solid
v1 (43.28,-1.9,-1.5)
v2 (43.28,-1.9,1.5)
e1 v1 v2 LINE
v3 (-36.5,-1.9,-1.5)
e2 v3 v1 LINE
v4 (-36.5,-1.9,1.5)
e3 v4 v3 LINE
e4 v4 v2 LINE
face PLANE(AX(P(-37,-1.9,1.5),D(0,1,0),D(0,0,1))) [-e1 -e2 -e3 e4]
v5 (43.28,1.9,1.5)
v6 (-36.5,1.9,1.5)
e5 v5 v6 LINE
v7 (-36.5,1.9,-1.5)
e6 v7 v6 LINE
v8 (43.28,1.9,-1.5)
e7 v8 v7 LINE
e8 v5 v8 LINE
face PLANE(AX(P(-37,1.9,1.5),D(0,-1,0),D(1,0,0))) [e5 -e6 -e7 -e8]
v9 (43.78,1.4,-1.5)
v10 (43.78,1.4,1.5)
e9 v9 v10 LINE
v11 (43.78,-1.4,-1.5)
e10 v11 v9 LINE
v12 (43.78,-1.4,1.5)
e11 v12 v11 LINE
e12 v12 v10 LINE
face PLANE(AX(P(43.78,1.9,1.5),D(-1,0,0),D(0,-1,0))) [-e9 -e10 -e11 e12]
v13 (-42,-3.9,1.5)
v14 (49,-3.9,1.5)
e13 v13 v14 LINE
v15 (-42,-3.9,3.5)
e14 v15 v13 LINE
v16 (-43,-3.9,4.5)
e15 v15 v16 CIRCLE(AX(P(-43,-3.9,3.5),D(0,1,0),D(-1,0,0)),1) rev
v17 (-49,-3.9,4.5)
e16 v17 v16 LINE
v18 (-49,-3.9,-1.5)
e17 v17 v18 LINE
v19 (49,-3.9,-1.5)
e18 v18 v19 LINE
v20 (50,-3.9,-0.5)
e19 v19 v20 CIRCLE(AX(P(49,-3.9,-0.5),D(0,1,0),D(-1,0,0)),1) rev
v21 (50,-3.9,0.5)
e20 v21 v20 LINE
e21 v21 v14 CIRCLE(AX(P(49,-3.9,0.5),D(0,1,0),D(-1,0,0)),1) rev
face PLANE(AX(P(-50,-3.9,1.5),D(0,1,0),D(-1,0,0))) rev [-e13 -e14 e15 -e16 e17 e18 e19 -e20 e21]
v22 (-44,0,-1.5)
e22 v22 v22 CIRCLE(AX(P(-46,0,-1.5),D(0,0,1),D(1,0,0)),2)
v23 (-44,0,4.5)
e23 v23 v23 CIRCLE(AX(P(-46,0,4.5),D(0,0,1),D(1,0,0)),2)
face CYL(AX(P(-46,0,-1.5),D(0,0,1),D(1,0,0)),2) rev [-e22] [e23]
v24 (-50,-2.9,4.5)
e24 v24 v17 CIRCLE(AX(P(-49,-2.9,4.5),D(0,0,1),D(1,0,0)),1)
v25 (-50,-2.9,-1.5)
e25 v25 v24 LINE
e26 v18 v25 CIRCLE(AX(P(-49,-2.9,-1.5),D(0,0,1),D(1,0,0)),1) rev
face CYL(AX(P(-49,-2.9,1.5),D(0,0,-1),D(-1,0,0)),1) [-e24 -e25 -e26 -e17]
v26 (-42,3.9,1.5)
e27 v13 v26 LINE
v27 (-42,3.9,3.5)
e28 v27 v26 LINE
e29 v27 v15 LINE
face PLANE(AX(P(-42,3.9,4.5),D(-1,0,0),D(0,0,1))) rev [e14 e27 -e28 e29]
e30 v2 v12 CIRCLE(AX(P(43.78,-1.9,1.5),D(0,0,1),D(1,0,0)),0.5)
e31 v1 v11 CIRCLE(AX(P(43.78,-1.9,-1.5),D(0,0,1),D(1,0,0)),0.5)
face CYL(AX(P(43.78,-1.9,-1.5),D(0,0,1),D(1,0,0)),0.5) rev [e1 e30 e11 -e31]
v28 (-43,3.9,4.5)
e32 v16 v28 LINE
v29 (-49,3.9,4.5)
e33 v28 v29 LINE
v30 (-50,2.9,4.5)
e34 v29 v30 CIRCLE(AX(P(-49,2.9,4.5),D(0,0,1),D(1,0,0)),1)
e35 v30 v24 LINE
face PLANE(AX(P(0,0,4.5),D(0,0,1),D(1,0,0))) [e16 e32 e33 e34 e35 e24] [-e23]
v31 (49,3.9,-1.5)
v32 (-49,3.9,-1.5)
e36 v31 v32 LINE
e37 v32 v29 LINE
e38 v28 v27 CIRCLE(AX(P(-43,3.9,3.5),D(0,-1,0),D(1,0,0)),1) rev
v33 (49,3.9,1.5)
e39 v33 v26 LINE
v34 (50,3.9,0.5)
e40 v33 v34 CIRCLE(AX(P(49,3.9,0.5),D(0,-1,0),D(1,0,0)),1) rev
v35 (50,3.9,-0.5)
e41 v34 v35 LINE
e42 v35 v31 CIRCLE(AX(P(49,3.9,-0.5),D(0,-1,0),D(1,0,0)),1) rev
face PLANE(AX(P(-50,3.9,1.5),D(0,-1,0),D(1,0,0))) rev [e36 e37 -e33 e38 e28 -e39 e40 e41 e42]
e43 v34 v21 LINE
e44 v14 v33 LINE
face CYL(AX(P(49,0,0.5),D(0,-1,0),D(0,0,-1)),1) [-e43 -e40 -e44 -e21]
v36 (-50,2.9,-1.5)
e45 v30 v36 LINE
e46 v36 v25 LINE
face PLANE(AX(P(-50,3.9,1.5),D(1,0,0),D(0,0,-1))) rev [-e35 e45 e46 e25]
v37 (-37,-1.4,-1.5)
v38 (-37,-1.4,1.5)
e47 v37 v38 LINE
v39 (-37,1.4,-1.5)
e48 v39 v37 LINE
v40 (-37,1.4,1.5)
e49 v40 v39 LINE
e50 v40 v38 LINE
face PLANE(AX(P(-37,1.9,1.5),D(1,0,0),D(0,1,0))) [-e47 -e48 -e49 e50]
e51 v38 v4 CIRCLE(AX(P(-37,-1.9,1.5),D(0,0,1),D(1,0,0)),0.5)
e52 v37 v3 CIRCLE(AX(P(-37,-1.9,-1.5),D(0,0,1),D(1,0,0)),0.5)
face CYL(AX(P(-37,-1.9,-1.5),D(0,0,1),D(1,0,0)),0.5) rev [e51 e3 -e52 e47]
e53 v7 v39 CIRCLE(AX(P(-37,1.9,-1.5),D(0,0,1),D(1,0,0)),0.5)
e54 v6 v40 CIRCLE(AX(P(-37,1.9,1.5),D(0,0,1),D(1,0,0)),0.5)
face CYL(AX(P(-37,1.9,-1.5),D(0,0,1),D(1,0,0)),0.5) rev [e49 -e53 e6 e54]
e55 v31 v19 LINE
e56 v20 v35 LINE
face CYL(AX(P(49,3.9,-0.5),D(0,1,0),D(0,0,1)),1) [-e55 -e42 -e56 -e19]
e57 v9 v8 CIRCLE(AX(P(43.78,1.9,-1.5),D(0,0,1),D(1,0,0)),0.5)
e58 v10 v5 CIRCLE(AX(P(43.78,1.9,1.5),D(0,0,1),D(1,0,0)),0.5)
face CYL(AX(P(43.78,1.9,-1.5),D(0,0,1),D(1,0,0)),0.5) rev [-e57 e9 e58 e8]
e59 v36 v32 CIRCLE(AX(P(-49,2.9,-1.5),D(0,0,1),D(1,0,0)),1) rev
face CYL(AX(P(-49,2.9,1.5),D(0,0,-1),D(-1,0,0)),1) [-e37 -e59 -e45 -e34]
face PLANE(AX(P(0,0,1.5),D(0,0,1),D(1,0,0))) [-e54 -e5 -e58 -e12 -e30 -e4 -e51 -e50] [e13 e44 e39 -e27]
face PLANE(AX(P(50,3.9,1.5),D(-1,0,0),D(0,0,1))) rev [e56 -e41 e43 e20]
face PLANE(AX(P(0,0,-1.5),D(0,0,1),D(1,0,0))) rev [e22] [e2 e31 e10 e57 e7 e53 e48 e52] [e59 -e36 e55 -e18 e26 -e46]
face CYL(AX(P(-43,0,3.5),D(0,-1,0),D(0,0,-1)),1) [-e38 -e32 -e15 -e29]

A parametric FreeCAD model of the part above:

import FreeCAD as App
import Part
import Sketcher

V = App.Vector


def edges_at(feature, points):
    """Names of the edges that pass closest to the given points."""
    edges = feature.Shape.Edges
    near = lambda p: min(range(len(edges)), key=lambda i: edges[i].distToShape(Part.Vertex(*p))[0])
    return sorted({f"Edge{near(p) + 1}" for p in points})

doc = App.newDocument("Part")
params = doc.addObject("Spreadsheet::Sheet", "Params")
for row, (alias, value) in enumerate([
    ("sketch1_width", "100 mm"),
    ("sketch1_height", "7.8 mm"),
    ("sketch1_height2", "3.8 mm"),
    ("sketch1_width2", "80.78 mm"),
    ("pad1_length", "3 mm"),
    ("sketch2_width", "8 mm"),
    ("sketch2_height", "7.8 mm"),
    ("pad2_length", "3 mm"),
    ("sketch3_diameter", "4 mm"),
    ("fillet_radius", "1 mm"),
    ("fillet2_radius", "1 mm"),
    ("fillet3_radius", "1 mm"),
    ("fillet4_radius", "1 mm"),
    ("fillet5_radius", "1 mm"),
    ("sketch4_diameter", "1 mm"),
], start=1):
    params.set(f"A{row}", alias)
    params.set(f"B{row}", "=" + value)
    params.setAlias(f"B{row}", alias)

body = doc.addObject("PartDesign::Body", "Body")

# Sketch on XY plane
sketch1 = doc.addObject("Sketcher::SketchObject", "Sketch")
body.addObject(sketch1)
sketch1.AttachmentSupport = (doc.XY_Plane, [""])
sketch1.MapMode = "FlatFace"
sketch1.addGeometry([
    Part.LineSegment(V(-50, 3.9, 0), V(-50, -3.9, 0)),  # 0
    Part.LineSegment(V(-50, -3.9, 0), V(50, -3.9, 0)),  # 1
    Part.LineSegment(V(50, -3.9, 0), V(50, 3.9, 0)),  # 2
    Part.LineSegment(V(50, 3.9, 0), V(-50, 3.9, 0)),  # 3
    Part.LineSegment(V(43.8, -1.9, 0), V(-37, -1.9, 0)),  # 4
    Part.LineSegment(V(-37, -1.9, 0), V(-37, 1.9, 0)),  # 5
    Part.LineSegment(V(-37, 1.9, 0), V(43.8, 1.9, 0)),  # 6
    Part.LineSegment(V(43.8, 1.9, 0), V(43.8, -1.9, 0)),  # 7
], False)
sketch1.addConstraint([
    Sketcher.Constraint("Coincident", 0, 2, 1, 1),
    Sketcher.Constraint("Coincident", 1, 2, 2, 1),
    Sketcher.Constraint("Coincident", 2, 2, 3, 1),
    Sketcher.Constraint("Coincident", 3, 2, 0, 1),
    Sketcher.Constraint("Coincident", 4, 2, 5, 1),
    Sketcher.Constraint("Coincident", 5, 2, 6, 1),
    Sketcher.Constraint("Coincident", 6, 2, 7, 1),
    Sketcher.Constraint("Coincident", 7, 2, 4, 1),
    Sketcher.Constraint("Vertical", 0),
    Sketcher.Constraint("Horizontal", 1),
    Sketcher.Constraint("Vertical", 2),
    Sketcher.Constraint("Horizontal", 3),
    Sketcher.Constraint("Horizontal", 4),
    Sketcher.Constraint("Vertical", 5),
    Sketcher.Constraint("Horizontal", 6),
    Sketcher.Constraint("Vertical", 7),
    Sketcher.Constraint("Symmetric", 0, 2, 2, 2, -1, 1),
    Sketcher.Constraint("DistanceX", 1, 1, 1, 2, 100.0),
    Sketcher.Constraint("DistanceY", 0, 2, 0, 1, 7.8),
    Sketcher.Constraint("DistanceY", 5, 1, 5, 2, 3.8),
    Sketcher.Constraint("DistanceX", 4, 2, -1, 1, 37.0),
    Sketcher.Constraint("DistanceY", 0, 2, 4, 2, 2.0),
    Sketcher.Constraint("DistanceX", 4, 2, 4, 1, 80.78),
])
sketch1.setExpression("Constraints[17]", "Params.sketch1_width")
sketch1.setExpression("Constraints[18]", "Params.sketch1_height")
sketch1.setExpression("Constraints[19]", "Params.sketch1_height2")
sketch1.setExpression("Constraints[22]", "Params.sketch1_width2")
pad1 = doc.addObject("PartDesign::Pad", "Pad")
body.addObject(pad1)
pad1.Profile = sketch1
pad1.setExpression("Length", "Params.pad1_length")
pad1.Midplane = True

# Sketch on XY plane
sketch2 = doc.addObject("Sketcher::SketchObject", "Sketch001")
body.addObject(sketch2)
sketch2.AttachmentSupport = (doc.XY_Plane, [""])
sketch2.MapMode = "FlatFace"
sketch2.AttachmentOffset = App.Placement(V(0, 0, 1.5), App.Rotation())
sketch2.addGeometry([
    Part.LineSegment(V(-50, 4, 0), V(-50, -4, 0)),
    Part.LineSegment(V(-50, -4, 0), V(-42, -4, 0)),
    Part.LineSegment(V(-42, -4, 0), V(-42, 4, 0)),
    Part.LineSegment(V(-42, 4, 0), V(-50, 4, 0)),
], False)
sketch2.addConstraint([
    Sketcher.Constraint("Coincident", 0, 2, 1, 1),
    Sketcher.Constraint("Coincident", 1, 2, 2, 1),
    Sketcher.Constraint("Coincident", 2, 2, 3, 1),
    Sketcher.Constraint("Coincident", 3, 2, 0, 1),
    Sketcher.Constraint("Vertical", 0),
    Sketcher.Constraint("Horizontal", 1),
    Sketcher.Constraint("Vertical", 2),
    Sketcher.Constraint("Horizontal", 3),
    Sketcher.Constraint("DistanceX", 1, 1, 1, 2, 8.0),
    Sketcher.Constraint("DistanceY", 0, 2, 0, 1, 7.8),
    Sketcher.Constraint("DistanceX", 0, 2, -1, 1, 50.0),
    Sketcher.Constraint("DistanceY", 0, 2, -1, 1, 3.9),
])
sketch2.setExpression("Constraints[8]", "Params.sketch2_width")
sketch2.setExpression("Constraints[9]", "Params.sketch2_height")
pad2 = doc.addObject("PartDesign::Pad", "Pad001")
body.addObject(pad2)
pad2.Profile = sketch2
pad2.setExpression("Length", "Params.pad2_length")

# Sketch on XY plane
sketch3 = doc.addObject("Sketcher::SketchObject", "Sketch002")
body.addObject(sketch3)
sketch3.AttachmentSupport = (doc.XY_Plane, [""])
sketch3.MapMode = "FlatFace"
sketch3.AttachmentOffset = App.Placement(V(0, 0, 4.5), App.Rotation())
sketch3.addGeometry(Part.Circle(V(-46, 0, 0), V(0, 0, 1), 2), False)
sketch3.addConstraint([
    Sketcher.Constraint("PointOnObject", 0, 3, -1),
    Sketcher.Constraint("Diameter", 0, 4.0),
    Sketcher.Constraint("DistanceX", 0, 3, -1, 1, 46.0),
])
sketch3.setExpression("Constraints[1]", "Params.sketch3_diameter")
pocket1 = doc.addObject("PartDesign::Pocket", "Pocket")
body.addObject(pocket1)
pocket1.Profile = sketch3
pocket1.Type = "ThroughAll"
pocket1.Midplane = True
doc.recompute()

fillet = doc.addObject("PartDesign::Fillet", "Fillet")
body.addObject(fillet)
fillet.Base = (pocket1, edges_at(pocket1, [(-50, 3.9, 1.5)]))
fillet.setExpression("Radius", "Params.fillet_radius")
doc.recompute()

fillet2 = doc.addObject("PartDesign::Fillet", "Fillet001")
body.addObject(fillet2)
fillet2.Base = (fillet, edges_at(fillet, [(-50, -3.9, 1.5)]))
fillet2.setExpression("Radius", "Params.fillet2_radius")
doc.recompute()

fillet3 = doc.addObject("PartDesign::Fillet", "Fillet002")
body.addObject(fillet3)
fillet3.Base = (fillet2, edges_at(fillet2, [(-42, 0, 4.5)]))
fillet3.setExpression("Radius", "Params.fillet3_radius")
doc.recompute()

fillet4 = doc.addObject("PartDesign::Fillet", "Fillet003")
body.addObject(fillet4)
fillet4.Base = (fillet3, edges_at(fillet3, [(50, 0, -1.5)]))
fillet4.setExpression("Radius", "Params.fillet4_radius")
doc.recompute()

fillet5 = doc.addObject("PartDesign::Fillet", "Fillet004")
body.addObject(fillet5)
fillet5.Base = (fillet4, edges_at(fillet4, [(50, 0, 1.5)]))
fillet5.setExpression("Radius", "Params.fillet5_radius")

# Sketch on XY plane
sketch4 = doc.addObject("Sketcher::SketchObject", "Sketch003")
body.addObject(sketch4)
sketch4.AttachmentSupport = (doc.XY_Plane, [""])
sketch4.MapMode = "FlatFace"
sketch4.AttachmentOffset = App.Placement(V(0, 0, 1.5), App.Rotation())
sketch4.addGeometry([
    Part.Circle(V(-37, 1.9, 0), V(0, 0, 1), 0.5),
    Part.Circle(V(-37, -1.9, 0), V(0, 0, 1), 0.5),
    Part.Circle(V(43.8, -1.9, 0), V(0, 0, 1), 0.5),
    Part.Circle(V(43.8, 1.9, 0), V(0, 0, 1), 0.5),
], False)
sketch4.addConstraint([
    Sketcher.Constraint("Equal", 0, 1),
    Sketcher.Constraint("Equal", 1, 2),
    Sketcher.Constraint("Equal", 2, 3),
    Sketcher.Constraint("Symmetric", 0, 3, 1, 3, -1),
    Sketcher.Constraint("Symmetric", 2, 3, 3, 3, -1),
    Sketcher.Constraint("Horizontal", 1, 3, 2, 3),
    Sketcher.Constraint("Diameter", 0, 1.0),
    Sketcher.Constraint("DistanceX", 0, 3, -1, 1, 37.0),
    Sketcher.Constraint("DistanceY", -1, 1, 0, 3, 1.9),
    Sketcher.Constraint("DistanceX", -1, 1, 2, 3, 43.78),
])
sketch4.setExpression("Constraints[6]", "Params.sketch4_diameter")
pocket2 = doc.addObject("PartDesign::Pocket", "Pocket001")
body.addObject(pocket2)
pocket2.Profile = sketch4
pocket2.Type = "ThroughAll"

doc.recompute()
